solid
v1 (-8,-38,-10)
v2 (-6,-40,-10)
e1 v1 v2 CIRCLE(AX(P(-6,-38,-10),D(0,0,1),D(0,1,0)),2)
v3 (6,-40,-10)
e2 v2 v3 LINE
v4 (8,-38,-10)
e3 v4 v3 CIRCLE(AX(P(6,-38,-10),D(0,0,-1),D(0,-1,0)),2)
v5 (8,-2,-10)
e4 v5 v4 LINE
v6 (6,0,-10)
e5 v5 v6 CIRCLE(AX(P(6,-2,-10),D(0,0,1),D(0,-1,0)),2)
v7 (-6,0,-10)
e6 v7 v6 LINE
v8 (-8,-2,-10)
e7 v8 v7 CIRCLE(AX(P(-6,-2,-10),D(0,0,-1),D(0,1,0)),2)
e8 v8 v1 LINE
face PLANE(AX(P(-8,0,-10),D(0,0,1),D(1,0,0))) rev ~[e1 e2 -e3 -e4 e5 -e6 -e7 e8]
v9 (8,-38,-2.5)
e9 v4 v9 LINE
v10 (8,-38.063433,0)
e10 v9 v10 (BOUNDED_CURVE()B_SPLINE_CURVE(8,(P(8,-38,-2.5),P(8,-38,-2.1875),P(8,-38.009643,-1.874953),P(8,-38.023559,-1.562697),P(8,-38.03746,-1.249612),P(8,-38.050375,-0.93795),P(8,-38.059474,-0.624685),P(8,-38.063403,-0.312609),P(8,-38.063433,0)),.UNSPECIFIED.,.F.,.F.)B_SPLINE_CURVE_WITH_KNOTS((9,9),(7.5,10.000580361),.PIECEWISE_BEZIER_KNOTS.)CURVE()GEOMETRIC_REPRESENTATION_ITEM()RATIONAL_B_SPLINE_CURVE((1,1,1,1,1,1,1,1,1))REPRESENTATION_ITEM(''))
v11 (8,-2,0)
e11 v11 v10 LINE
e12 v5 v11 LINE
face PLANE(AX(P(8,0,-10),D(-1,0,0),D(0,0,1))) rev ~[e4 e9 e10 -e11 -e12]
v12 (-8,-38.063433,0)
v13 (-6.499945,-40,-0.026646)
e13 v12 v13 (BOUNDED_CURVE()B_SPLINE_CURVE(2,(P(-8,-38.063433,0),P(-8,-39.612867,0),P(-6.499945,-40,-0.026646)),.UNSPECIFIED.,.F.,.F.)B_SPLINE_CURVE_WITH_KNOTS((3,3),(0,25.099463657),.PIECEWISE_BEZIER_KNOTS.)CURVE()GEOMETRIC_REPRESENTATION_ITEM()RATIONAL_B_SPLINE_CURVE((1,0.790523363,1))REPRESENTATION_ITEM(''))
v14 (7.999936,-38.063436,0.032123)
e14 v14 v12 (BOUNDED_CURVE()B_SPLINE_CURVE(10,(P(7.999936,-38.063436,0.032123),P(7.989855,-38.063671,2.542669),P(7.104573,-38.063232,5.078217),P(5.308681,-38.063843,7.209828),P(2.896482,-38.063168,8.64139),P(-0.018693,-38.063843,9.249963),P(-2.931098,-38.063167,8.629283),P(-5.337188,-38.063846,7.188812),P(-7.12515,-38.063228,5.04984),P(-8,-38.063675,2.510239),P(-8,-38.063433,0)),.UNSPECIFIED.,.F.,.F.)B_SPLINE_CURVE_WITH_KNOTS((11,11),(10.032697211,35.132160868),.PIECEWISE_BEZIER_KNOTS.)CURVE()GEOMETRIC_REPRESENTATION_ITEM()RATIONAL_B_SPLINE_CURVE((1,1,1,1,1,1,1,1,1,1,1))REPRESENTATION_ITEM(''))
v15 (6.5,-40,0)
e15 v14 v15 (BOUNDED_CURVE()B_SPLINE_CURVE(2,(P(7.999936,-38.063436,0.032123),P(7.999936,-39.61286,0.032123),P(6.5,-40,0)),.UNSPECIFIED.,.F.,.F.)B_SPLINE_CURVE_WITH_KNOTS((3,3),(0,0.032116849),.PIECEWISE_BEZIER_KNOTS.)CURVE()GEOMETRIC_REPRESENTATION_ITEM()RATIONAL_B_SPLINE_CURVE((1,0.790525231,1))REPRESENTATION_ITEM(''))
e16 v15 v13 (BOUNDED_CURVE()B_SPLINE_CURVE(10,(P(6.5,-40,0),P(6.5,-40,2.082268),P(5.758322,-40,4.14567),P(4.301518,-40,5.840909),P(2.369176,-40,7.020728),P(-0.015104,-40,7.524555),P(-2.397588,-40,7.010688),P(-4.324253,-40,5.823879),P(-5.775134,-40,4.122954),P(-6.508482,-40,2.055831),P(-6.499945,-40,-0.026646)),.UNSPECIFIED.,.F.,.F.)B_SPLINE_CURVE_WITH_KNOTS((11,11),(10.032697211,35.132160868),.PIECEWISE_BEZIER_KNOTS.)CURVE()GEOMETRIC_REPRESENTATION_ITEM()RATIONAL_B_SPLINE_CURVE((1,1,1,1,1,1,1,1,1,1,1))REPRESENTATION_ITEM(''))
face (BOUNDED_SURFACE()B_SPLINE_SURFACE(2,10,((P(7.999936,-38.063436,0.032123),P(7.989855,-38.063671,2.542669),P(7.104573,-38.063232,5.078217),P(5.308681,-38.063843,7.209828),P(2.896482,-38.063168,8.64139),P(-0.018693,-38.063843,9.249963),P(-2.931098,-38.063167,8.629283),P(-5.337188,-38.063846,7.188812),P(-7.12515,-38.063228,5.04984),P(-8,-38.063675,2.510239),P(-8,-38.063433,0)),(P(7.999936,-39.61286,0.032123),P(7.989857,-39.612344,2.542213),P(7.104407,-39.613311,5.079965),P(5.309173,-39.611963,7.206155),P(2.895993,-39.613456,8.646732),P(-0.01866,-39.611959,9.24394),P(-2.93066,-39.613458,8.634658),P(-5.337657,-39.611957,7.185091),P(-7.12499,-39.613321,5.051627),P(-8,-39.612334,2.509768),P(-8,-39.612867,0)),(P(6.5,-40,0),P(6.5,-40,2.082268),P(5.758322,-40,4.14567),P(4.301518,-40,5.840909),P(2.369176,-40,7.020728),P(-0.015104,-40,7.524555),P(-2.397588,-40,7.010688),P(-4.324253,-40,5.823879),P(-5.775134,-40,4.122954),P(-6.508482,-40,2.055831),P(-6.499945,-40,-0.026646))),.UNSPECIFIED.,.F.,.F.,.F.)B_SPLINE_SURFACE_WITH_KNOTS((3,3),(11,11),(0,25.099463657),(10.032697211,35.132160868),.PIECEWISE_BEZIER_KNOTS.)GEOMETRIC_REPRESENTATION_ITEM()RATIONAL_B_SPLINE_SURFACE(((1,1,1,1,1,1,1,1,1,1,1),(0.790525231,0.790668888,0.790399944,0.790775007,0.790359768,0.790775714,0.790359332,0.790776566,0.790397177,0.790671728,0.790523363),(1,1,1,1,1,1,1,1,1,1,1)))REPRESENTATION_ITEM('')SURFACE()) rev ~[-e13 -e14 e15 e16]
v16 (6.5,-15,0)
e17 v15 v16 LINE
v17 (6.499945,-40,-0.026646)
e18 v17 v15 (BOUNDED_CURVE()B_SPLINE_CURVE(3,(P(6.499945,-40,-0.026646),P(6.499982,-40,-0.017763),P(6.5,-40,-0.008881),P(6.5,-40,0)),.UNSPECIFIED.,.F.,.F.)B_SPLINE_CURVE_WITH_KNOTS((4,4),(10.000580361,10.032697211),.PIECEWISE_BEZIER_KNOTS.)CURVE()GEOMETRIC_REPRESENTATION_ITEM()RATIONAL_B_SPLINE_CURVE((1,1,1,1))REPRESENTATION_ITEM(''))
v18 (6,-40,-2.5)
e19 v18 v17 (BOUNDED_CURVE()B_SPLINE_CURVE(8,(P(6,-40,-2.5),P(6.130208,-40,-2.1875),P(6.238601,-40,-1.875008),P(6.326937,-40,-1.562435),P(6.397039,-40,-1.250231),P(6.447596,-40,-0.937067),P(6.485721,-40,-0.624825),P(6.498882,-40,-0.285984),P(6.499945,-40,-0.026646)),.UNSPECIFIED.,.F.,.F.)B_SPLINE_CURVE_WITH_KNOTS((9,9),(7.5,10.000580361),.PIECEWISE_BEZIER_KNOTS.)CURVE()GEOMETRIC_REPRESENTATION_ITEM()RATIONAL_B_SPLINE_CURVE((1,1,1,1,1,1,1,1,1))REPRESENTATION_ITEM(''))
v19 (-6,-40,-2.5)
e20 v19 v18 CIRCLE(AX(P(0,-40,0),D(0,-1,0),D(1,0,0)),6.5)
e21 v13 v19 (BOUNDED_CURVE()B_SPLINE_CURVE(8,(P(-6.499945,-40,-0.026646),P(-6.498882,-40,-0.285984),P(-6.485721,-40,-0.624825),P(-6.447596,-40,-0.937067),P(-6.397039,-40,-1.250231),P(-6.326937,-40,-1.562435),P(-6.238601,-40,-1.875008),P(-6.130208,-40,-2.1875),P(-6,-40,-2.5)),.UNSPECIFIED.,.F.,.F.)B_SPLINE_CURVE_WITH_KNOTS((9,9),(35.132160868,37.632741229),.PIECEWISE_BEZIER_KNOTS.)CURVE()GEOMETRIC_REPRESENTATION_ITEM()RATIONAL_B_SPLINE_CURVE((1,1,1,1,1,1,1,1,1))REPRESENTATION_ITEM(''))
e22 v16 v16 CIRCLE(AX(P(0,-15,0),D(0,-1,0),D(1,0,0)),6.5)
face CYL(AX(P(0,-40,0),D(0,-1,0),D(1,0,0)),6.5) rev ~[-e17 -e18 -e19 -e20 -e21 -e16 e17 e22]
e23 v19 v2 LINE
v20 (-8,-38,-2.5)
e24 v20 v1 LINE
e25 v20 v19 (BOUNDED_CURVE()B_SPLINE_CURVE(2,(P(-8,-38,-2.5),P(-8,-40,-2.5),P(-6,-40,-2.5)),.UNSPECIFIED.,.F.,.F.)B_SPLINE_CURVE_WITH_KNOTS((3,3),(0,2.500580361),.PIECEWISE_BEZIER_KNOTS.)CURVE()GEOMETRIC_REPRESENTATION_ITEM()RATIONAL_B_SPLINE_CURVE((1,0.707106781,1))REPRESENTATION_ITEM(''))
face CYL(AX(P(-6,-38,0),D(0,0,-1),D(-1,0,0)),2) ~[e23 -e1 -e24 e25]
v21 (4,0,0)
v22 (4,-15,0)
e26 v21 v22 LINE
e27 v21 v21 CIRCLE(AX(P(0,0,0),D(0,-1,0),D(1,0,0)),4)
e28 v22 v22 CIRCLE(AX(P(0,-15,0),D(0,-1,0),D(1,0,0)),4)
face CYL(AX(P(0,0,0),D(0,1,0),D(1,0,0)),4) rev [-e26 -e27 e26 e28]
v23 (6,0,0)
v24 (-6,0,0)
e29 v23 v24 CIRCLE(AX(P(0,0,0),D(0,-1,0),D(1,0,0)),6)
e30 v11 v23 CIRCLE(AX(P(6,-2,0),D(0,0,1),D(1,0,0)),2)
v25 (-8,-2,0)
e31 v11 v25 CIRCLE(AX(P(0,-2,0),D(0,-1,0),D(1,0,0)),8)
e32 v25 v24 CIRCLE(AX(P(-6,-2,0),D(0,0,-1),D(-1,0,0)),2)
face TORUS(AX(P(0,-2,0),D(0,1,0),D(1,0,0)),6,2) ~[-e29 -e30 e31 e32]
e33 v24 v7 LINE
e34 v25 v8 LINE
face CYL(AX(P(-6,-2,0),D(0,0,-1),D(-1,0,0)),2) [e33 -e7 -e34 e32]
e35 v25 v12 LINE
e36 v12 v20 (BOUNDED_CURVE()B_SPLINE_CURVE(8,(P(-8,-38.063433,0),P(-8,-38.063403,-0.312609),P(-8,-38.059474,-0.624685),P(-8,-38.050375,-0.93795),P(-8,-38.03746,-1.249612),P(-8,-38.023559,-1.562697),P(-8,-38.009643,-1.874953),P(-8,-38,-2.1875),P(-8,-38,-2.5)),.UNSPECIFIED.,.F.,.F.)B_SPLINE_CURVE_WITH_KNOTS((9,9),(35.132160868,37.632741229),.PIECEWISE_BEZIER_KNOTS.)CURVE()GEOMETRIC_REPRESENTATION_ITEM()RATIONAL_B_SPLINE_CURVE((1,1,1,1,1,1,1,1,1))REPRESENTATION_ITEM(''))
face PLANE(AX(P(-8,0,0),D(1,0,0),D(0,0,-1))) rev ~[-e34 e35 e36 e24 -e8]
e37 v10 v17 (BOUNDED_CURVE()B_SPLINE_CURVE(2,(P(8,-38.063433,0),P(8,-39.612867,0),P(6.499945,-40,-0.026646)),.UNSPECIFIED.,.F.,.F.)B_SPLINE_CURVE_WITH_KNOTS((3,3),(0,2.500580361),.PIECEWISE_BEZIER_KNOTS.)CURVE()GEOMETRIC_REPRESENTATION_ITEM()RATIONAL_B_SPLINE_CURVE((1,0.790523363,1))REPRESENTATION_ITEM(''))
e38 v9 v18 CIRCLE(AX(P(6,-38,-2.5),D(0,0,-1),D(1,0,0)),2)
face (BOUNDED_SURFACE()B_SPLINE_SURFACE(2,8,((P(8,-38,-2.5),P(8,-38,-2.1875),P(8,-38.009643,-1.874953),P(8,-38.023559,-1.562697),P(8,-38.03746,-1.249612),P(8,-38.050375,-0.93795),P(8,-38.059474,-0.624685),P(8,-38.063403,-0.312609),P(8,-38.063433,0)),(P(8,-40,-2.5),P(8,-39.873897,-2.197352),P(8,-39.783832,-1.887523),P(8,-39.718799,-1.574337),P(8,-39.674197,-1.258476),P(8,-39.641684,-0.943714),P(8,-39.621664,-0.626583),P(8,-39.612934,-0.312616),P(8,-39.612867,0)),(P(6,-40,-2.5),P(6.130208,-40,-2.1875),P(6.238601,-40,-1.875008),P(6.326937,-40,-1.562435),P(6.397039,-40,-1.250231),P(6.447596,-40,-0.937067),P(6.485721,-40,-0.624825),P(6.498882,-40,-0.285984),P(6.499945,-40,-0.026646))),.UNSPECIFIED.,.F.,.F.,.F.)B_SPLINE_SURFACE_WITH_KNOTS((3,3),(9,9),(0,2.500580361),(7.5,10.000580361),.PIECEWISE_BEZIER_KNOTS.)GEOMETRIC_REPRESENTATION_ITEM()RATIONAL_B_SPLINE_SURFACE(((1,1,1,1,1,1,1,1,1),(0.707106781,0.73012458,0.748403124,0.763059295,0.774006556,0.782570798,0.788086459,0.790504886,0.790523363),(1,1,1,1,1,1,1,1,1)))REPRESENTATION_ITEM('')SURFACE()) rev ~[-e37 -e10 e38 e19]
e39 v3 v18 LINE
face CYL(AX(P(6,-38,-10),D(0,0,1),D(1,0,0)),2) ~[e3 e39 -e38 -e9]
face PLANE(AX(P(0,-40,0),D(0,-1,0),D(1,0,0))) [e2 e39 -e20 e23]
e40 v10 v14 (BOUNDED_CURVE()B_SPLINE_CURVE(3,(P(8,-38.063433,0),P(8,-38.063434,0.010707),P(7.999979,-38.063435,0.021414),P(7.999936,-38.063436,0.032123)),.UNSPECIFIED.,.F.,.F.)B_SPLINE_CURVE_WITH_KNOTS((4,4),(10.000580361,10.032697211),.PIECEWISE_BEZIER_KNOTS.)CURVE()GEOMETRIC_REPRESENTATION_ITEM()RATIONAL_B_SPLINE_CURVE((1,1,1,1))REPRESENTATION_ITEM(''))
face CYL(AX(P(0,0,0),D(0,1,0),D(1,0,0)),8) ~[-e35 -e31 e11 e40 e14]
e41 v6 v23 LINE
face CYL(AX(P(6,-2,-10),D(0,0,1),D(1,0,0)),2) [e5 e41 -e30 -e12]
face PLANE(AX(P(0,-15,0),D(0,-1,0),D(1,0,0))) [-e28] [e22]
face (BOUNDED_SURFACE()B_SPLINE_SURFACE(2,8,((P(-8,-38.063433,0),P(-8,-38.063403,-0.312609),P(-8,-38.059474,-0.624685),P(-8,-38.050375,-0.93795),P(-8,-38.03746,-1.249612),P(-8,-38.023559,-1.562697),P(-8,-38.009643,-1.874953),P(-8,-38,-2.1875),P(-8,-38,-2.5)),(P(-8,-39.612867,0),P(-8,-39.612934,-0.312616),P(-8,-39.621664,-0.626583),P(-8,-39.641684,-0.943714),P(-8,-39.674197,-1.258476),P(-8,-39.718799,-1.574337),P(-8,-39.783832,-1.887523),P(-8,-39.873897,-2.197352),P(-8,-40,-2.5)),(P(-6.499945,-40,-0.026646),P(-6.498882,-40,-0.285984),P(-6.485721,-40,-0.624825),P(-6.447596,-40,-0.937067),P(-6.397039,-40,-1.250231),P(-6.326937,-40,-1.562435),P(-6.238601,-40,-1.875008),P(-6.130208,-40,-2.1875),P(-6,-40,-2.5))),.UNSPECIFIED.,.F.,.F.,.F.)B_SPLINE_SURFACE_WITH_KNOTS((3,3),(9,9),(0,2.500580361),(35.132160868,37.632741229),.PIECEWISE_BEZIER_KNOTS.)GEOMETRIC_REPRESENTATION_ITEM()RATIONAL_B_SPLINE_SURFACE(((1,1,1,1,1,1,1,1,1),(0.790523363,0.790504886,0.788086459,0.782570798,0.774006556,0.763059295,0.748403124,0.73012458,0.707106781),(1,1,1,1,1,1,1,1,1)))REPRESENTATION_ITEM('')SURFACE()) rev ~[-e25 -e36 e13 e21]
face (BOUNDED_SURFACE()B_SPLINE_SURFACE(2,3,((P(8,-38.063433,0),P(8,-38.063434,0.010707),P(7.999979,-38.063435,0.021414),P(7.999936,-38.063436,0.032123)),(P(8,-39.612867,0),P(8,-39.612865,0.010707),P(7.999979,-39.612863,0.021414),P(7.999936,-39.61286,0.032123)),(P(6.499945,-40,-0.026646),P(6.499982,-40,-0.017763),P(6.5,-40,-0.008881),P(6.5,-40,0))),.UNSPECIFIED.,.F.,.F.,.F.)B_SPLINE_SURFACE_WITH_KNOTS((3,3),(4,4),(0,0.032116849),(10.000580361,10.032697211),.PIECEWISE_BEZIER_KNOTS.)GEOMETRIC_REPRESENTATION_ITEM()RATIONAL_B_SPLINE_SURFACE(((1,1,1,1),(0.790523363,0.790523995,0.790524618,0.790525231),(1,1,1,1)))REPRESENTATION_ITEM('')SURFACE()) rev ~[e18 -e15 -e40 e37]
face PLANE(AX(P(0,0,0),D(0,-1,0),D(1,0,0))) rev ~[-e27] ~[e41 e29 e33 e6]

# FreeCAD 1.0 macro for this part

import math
import FreeCAD as App
import Part
import Sketcher
Q = App.Units.Quantity


def edges_at(feature, points):
    """Names of the edges that pass closest to the given points."""
    edges = feature.Shape.Edges
    near = lambda p: min(range(len(edges)), key=lambda i: edges[i].distToShape(Part.Vertex(*p))[0])
    return sorted({f"Edge{near(p) + 1}" for p in points})

doc = App.newDocument("Part")
body = doc.addObject("PartDesign::Body", "Body")

# Sketch on XZ plane
sketch1 = body.newObject("Sketcher::SketchObject", "Sketch")
sketch1.AttachmentSupport = (doc.getObject("XZ_Plane"), [""])
sketch1.MapMode = "FlatFace"
sketch1.addGeometry(Part.ArcOfCircle(Part.Circle(App.Vector(0, 0, 0), App.Vector(0, 0, 1), 8), math.radians(0), math.radians(180)), False)
sketch1.addGeometry(Part.LineSegment(App.Vector(-8, 0, 0), App.Vector(-8, -10, 0)), False)
sketch1.addGeometry(Part.LineSegment(App.Vector(-8, -10, 0), App.Vector(8, -10, 0)), False)
sketch1.addGeometry(Part.LineSegment(App.Vector(8, -10, 0), App.Vector(8, 0, 0)), False)
sketch1.addGeometry(Part.Circle(App.Vector(0, 0, 0), App.Vector(0, 0, 1), 4), False)
sketch1.addConstraint(Sketcher.Constraint("Tangent", 0, 2, 1, 1))
sketch1.addConstraint(Sketcher.Constraint("Coincident", 1, 2, 2, 1))
sketch1.addConstraint(Sketcher.Constraint("Coincident", 2, 2, 3, 1))
sketch1.addConstraint(Sketcher.Constraint("Tangent", 3, 2, 0, 1))
sketch1.addConstraint(Sketcher.Constraint("Vertical", 1))
sketch1.addConstraint(Sketcher.Constraint("Horizontal", 2))
sketch1.addConstraint(Sketcher.Constraint("Vertical", 3))
sketch1.addConstraint(Sketcher.Constraint("Coincident", 0, 3, -1, 1))
sketch1.addConstraint(Sketcher.Constraint("Coincident", 4, 3, -1, 1))
sketch1.addConstraint(Sketcher.Constraint("Diameter", 4, Q("8 mm")))
sketch1.addConstraint(Sketcher.Constraint("Radius", 0, Q("8 mm")))
sketch1.addConstraint(Sketcher.Constraint("DistanceY", 1, 2, 1, 1, Q("10 mm")))
pad1 = body.newObject("PartDesign::Pad", "Pad")
pad1.Profile = sketch1
pad1.Length = 40

# Sketch on XZ plane
sketch2 = body.newObject("Sketcher::SketchObject", "Sketch001")
sketch2.AttachmentSupport = (doc.getObject("XZ_Plane"), [""])
sketch2.MapMode = "FlatFace"
sketch2.AttachmentOffset = App.Placement(App.Vector(0, 0, 40), App.Rotation())
sketch2.addGeometry(Part.Circle(App.Vector(0, 0, 0), App.Vector(0, 0, 1), 6.5), False)
sketch2.addGeometry(Part.Circle(App.Vector(0, 0, 0), App.Vector(0, 0, 1), 4), False)
sketch2.addConstraint(Sketcher.Constraint("Coincident", 0, 3, -1, 1))
sketch2.addConstraint(Sketcher.Constraint("Coincident", 1, 3, -1, 1))
sketch2.addConstraint(Sketcher.Constraint("Diameter", 0, Q("13 mm")))
sketch2.addConstraint(Sketcher.Constraint("Diameter", 1, Q("8 mm")))
pocket1 = body.newObject("PartDesign::Pocket", "Pocket")
pocket1.Profile = sketch2
pocket1.Length = 25
doc.recompute()

fillet = body.newObject("PartDesign::Fillet", "Fillet")
fillet.Base = (pocket1, edges_at(pocket1, [(0, -40, 8), (0, 0, 8)]))
fillet.Radius = 2

doc.recompute()
